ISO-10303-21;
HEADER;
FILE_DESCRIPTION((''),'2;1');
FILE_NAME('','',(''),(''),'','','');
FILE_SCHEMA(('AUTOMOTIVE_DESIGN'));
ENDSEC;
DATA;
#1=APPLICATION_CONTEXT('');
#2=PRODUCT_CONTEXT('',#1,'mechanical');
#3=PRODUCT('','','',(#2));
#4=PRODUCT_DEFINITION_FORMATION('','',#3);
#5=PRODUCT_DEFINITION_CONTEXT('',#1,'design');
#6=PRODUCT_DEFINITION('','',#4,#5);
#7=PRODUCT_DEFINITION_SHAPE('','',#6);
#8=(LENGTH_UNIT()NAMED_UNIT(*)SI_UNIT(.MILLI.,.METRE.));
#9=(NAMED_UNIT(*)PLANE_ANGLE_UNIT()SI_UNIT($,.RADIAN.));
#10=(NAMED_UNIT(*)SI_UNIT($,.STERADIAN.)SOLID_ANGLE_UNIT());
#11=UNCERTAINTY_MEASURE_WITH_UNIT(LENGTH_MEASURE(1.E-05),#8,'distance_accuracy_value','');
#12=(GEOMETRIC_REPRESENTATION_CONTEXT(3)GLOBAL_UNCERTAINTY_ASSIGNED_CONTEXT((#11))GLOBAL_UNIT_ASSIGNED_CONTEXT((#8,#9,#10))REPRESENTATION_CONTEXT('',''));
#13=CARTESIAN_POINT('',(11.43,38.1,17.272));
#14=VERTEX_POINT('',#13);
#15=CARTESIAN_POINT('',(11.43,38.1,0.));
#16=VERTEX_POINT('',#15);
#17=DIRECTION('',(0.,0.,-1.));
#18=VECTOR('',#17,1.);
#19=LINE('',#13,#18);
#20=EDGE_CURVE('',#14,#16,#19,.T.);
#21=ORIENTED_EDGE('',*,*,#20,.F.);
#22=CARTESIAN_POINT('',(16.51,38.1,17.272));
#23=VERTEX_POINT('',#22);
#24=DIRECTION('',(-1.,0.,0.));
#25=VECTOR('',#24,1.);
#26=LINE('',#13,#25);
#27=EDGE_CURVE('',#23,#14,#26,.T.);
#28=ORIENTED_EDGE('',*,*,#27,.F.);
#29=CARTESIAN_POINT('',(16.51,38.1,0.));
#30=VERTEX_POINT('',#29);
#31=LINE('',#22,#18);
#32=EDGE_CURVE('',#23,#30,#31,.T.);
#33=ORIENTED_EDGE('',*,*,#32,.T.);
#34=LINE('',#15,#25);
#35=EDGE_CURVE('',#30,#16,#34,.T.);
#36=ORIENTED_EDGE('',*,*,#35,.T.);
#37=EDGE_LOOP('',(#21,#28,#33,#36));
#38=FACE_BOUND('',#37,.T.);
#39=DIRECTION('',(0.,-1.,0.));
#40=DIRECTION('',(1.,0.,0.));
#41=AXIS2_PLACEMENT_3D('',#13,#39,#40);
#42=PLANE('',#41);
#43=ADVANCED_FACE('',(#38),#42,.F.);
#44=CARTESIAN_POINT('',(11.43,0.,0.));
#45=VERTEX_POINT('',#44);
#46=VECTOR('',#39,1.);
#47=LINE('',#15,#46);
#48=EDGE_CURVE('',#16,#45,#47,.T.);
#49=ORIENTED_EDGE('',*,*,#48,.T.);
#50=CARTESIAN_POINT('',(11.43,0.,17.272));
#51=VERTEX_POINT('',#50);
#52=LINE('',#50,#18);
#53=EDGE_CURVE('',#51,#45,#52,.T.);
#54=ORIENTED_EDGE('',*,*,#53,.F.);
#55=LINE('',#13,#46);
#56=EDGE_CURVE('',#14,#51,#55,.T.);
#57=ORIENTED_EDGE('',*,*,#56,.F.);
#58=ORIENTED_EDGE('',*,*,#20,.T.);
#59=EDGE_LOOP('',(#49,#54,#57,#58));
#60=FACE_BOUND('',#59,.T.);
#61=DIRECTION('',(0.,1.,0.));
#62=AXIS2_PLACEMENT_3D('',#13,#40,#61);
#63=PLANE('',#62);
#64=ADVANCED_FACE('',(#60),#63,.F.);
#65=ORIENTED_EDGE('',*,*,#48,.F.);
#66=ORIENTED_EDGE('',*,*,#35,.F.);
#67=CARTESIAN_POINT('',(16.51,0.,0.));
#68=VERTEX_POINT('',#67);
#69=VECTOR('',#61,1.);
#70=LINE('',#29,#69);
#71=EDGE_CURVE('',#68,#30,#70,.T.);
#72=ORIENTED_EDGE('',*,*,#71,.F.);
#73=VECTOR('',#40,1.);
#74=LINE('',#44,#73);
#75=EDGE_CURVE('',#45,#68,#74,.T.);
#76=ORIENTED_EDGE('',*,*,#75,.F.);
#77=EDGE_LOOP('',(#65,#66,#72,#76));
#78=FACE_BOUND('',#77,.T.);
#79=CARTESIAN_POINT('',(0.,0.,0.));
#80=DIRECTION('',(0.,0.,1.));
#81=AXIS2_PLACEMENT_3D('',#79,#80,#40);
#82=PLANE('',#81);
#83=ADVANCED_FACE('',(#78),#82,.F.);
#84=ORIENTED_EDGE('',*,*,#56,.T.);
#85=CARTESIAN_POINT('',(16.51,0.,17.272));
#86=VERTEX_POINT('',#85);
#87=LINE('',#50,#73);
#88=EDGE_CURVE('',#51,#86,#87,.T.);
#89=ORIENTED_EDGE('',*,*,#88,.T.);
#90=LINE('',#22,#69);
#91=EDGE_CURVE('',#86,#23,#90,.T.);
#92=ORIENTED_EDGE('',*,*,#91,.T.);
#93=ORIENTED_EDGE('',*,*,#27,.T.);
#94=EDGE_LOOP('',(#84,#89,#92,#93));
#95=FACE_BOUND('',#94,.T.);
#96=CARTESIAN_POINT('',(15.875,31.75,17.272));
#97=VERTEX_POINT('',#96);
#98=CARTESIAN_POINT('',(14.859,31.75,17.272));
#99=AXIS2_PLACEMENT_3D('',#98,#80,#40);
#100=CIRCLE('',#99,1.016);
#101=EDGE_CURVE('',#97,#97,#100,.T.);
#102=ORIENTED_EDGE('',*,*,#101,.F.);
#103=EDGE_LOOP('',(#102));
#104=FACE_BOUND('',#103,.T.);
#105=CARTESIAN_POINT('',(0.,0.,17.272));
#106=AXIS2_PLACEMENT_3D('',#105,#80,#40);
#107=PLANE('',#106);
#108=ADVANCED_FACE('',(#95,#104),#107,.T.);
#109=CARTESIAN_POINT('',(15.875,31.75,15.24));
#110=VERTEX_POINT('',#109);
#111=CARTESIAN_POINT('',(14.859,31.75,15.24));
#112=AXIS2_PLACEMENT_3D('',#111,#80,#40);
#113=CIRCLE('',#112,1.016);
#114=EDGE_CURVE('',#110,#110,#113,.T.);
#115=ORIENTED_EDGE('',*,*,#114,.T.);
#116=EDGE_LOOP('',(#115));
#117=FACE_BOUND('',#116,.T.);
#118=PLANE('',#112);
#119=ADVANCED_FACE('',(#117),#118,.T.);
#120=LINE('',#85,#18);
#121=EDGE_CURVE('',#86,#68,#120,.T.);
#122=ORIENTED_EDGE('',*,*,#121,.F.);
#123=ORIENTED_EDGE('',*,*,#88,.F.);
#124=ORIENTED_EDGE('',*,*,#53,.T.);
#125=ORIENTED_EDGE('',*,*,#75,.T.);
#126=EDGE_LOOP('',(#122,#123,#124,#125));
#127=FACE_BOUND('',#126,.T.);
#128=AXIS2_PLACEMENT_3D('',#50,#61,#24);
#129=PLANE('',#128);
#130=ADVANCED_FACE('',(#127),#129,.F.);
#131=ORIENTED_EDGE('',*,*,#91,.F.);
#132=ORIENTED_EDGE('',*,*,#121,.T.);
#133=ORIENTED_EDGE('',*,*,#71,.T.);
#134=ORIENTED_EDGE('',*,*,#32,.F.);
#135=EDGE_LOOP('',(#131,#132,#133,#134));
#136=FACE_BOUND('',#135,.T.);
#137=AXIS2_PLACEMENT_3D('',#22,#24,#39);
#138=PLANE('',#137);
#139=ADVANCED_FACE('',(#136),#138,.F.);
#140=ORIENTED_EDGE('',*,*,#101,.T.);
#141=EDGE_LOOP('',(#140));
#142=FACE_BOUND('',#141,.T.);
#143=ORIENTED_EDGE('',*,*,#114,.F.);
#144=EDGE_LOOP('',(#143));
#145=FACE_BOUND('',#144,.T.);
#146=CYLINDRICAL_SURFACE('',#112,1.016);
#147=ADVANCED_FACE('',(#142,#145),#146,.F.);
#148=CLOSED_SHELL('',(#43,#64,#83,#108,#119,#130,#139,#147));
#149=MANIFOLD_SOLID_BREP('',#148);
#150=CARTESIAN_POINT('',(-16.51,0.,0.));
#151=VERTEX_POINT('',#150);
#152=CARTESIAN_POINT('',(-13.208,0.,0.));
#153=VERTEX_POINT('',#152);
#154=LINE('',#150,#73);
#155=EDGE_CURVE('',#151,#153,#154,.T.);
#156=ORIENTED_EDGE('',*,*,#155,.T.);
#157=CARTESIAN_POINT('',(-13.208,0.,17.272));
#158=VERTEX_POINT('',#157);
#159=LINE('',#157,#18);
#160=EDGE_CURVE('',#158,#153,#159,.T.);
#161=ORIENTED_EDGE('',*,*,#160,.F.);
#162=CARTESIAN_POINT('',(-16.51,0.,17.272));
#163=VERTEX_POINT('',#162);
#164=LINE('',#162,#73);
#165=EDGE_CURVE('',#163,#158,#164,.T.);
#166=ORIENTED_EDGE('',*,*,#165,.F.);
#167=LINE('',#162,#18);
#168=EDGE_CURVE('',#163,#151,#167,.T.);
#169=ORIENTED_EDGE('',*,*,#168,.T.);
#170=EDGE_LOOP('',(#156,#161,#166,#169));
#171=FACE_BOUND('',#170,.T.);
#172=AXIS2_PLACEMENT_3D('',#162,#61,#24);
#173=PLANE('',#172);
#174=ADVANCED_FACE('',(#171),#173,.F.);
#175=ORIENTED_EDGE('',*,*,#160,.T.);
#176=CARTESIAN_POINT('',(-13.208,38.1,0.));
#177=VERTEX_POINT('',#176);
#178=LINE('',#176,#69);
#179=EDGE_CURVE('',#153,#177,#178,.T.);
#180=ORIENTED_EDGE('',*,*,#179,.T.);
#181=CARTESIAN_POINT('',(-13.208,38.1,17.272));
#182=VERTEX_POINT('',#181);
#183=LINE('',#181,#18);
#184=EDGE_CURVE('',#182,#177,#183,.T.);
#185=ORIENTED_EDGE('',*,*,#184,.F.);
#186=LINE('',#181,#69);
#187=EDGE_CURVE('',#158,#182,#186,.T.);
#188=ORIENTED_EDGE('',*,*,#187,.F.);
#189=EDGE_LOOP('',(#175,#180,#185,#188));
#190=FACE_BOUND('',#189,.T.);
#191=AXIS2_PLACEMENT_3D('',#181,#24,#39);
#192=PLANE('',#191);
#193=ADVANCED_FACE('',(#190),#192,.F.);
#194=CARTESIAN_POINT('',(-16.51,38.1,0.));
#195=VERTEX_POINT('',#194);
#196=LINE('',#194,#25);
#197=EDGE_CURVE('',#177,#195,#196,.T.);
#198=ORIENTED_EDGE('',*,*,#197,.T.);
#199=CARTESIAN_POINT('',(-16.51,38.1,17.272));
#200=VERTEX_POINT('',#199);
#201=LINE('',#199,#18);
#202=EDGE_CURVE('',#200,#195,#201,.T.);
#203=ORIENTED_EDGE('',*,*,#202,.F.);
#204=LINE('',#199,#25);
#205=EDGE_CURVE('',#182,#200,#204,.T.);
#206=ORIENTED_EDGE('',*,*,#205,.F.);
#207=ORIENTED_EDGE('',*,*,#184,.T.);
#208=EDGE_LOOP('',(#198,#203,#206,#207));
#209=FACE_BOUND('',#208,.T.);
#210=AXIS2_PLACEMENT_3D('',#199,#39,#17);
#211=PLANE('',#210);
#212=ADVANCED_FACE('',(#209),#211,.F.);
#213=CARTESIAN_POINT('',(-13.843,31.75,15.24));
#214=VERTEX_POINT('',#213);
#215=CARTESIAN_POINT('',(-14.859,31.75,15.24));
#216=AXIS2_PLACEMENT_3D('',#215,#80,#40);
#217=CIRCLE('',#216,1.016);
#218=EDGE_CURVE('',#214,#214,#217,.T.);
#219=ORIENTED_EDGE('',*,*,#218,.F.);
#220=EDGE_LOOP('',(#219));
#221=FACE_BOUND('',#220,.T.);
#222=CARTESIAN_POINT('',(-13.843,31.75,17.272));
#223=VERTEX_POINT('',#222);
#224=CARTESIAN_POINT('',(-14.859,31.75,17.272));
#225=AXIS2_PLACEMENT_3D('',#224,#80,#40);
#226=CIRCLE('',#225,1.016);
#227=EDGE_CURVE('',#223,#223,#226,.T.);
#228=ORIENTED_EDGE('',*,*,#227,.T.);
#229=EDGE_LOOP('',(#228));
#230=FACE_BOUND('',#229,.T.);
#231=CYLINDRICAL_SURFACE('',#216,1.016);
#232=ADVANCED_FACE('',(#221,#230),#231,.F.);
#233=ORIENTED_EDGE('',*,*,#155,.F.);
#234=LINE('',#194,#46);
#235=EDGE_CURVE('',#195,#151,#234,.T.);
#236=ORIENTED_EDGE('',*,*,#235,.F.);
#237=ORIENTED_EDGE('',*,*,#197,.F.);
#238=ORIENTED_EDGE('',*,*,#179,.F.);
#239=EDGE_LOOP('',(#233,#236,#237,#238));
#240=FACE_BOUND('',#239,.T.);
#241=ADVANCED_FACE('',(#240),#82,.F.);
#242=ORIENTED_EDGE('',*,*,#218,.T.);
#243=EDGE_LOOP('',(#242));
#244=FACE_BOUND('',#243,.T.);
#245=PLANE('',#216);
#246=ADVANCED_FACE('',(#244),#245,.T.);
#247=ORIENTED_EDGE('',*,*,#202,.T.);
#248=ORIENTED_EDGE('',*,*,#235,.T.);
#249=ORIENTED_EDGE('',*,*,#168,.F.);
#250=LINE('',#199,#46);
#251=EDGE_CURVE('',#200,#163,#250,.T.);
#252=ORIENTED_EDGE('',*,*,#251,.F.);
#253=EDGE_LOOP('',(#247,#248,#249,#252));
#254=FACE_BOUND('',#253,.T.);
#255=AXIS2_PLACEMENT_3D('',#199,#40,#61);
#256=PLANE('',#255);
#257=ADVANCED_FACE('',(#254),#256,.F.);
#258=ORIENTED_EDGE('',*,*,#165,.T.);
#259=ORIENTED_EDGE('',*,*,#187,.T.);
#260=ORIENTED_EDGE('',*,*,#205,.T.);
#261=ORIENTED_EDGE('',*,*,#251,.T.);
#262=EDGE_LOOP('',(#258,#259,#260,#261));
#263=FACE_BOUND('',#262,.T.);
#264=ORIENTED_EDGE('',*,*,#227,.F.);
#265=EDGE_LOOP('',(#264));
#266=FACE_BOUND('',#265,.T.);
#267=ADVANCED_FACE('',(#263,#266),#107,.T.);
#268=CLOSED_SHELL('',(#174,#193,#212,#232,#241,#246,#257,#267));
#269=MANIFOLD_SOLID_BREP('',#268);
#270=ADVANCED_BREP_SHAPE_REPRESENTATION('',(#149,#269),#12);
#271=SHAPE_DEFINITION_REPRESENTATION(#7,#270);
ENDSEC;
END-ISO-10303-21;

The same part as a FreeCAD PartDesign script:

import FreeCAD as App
import Part
import Sketcher

V = App.Vector
Q = App.Units.Quantity

doc = App.newDocument("Part")
body = doc.addObject("PartDesign::Body", "Body")

# Sketch on XY plane
sketch1 = body.newObject("Sketcher::SketchObject", "Sketch")
sketch1.AttachmentSupport = (doc.getObject("XY_Plane"), [""])
sketch1.MapMode = "FlatFace"
sketch1.addGeometry(Part.LineSegment(V(-16.5, 38.1, 0), V(-16.5, 0, 0)), False)
sketch1.addGeometry(Part.LineSegment(V(-16.5, 0, 0), V(-13.2, 0, 0)), False)
sketch1.addGeometry(Part.LineSegment(V(-13.2, 0, 0), V(-13.2, 38.1, 0)), False)
sketch1.addGeometry(Part.LineSegment(V(-13.2, 38.1, 0), V(-16.5, 38.1, 0)), False)
sketch1.addConstraint(Sketcher.Constraint("Coincident", 0, 2, 1, 1))
sketch1.addConstraint(Sketcher.Constraint("Coincident", 1, 2, 2, 1))
sketch1.addConstraint(Sketcher.Constraint("Coincident", 2, 2, 3, 1))
sketch1.addConstraint(Sketcher.Constraint("Coincident", 3, 2, 0, 1))
sketch1.addConstraint(Sketcher.Constraint("Vertical", 0))
sketch1.addConstraint(Sketcher.Constraint("Horizontal", 1))
sketch1.addConstraint(Sketcher.Constraint("Vertical", 2))
sketch1.addConstraint(Sketcher.Constraint("Horizontal", 3))
sketch1.addConstraint(Sketcher.Constraint("PointOnObject", 0, 2, -1))
sketch1.addConstraint(Sketcher.Constraint("DistanceY", 0, 2, 0, 1, Q("1.5 in")))
sketch1.addConstraint(Sketcher.Constraint("DistanceX", 1, 1, 1, 2, Q("0.13 in")))
sketch1.addConstraint(Sketcher.Constraint("DistanceX", 0, 2, -1, 1, Q("0.65 in")))
pad1 = body.newObject("PartDesign::Pad", "Pad")
pad1.Profile = sketch1
pad1.Length = Q("0.68 in")
body2 = doc.addObject("PartDesign::Body", "Body001")

# Sketch on XY plane
sketch2 = body2.newObject("Sketcher::SketchObject", "Sketch001")
sketch2.AttachmentSupport = (doc.getObject("XY_Plane001"), [""])
sketch2.MapMode = "FlatFace"
sketch2.addGeometry(Part.LineSegment(V(11, 38, 0), V(11, 0, 0)), False)
sketch2.addGeometry(Part.LineSegment(V(11, 0, 0), V(17, 0, 0)), False)
sketch2.addGeometry(Part.LineSegment(V(17, 0, 0), V(17, 38, 0)), False)
sketch2.addGeometry(Part.LineSegment(V(17, 38, 0), V(11, 38, 0)), False)
sketch2.addConstraint(Sketcher.Constraint("Coincident", 0, 2, 1, 1))
sketch2.addConstraint(Sketcher.Constraint("Coincident", 1, 2, 2, 1))
sketch2.addConstraint(Sketcher.Constraint("Coincident", 2, 2, 3, 1))
sketch2.addConstraint(Sketcher.Constraint("Coincident", 3, 2, 0, 1))
sketch2.addConstraint(Sketcher.Constraint("Vertical", 0))
sketch2.addConstraint(Sketcher.Constraint("Horizontal", 1))
sketch2.addConstraint(Sketcher.Constraint("Vertical", 2))
sketch2.addConstraint(Sketcher.Constraint("Horizontal", 3))
sketch2.addConstraint(Sketcher.Constraint("PointOnObject", 0, 2, -1))
sketch2.addConstraint(Sketcher.Constraint("DistanceX", 1, 1, 1, 2, Q("0.2 in")))
sketch2.addConstraint(Sketcher.Constraint("DistanceY", 0, 2, 0, 1, Q("1.5 in")))
sketch2.addConstraint(Sketcher.Constraint("DistanceX", -1, 1, 0, 2, Q("0.45 in")))
pad2 = body2.newObject("PartDesign::Pad", "Pad001")
pad2.Profile = sketch2
pad2.Length = Q("0.68 in")
body3 = doc.addObject("PartDesign::Body", "Body002")
body3.AllowCompound = True

# Sketch on XY plane
sketch3 = body3.newObject("Sketcher::SketchObject", "Sketch002")
sketch3.AttachmentSupport = (doc.getObject("XY_Plane002"), [""])
sketch3.MapMode = "FlatFace"
sketch3.AttachmentOffset = App.Placement(V(0, 0, 0.68 * 25.4), App.Rotation())
sketch3.addGeometry(Part.Circle(V(-14.9, 31.8, 0), V(0, 0, 1), 1), False)
sketch3.addGeometry(Part.Circle(V(14.9, 31.8, 0), V(0, 0, 1), 1), False)
sketch3.addConstraint(Sketcher.Constraint("Equal", 0, 1))
sketch3.addConstraint(Sketcher.Constraint("Symmetric", 0, 3, 1, 3, -2))
sketch3.addConstraint(Sketcher.Constraint("Diameter", 0, Q("0.08 in")))
sketch3.addConstraint(Sketcher.Constraint("DistanceY", -1, 1, 0, 3, Q("1.25 in")))
sketch3.addConstraint(Sketcher.Constraint("DistanceX", 0, 3, 1, 3, Q("1.17 in")))
pad3 = body3.newObject("PartDesign::Pad", "Pad002")
pad3.Profile = sketch3
pad3.Length = Q("0.08 in")
pad3.Reversed = True
doc.recompute()

body4 = doc.addObject("PartDesign::Body", "Body003")
body4.BaseFeature = body3
boolean = body.newObject("PartDesign::Boolean", "Boolean")
boolean.Type = "Cut"
boolean.addObjects([body4])
doc.recompute()

boolean2 = body2.newObject("PartDesign::Boolean", "Boolean001")
boolean2.Type = "Cut"
boolean2.addObjects([body3])

doc.recompute()
